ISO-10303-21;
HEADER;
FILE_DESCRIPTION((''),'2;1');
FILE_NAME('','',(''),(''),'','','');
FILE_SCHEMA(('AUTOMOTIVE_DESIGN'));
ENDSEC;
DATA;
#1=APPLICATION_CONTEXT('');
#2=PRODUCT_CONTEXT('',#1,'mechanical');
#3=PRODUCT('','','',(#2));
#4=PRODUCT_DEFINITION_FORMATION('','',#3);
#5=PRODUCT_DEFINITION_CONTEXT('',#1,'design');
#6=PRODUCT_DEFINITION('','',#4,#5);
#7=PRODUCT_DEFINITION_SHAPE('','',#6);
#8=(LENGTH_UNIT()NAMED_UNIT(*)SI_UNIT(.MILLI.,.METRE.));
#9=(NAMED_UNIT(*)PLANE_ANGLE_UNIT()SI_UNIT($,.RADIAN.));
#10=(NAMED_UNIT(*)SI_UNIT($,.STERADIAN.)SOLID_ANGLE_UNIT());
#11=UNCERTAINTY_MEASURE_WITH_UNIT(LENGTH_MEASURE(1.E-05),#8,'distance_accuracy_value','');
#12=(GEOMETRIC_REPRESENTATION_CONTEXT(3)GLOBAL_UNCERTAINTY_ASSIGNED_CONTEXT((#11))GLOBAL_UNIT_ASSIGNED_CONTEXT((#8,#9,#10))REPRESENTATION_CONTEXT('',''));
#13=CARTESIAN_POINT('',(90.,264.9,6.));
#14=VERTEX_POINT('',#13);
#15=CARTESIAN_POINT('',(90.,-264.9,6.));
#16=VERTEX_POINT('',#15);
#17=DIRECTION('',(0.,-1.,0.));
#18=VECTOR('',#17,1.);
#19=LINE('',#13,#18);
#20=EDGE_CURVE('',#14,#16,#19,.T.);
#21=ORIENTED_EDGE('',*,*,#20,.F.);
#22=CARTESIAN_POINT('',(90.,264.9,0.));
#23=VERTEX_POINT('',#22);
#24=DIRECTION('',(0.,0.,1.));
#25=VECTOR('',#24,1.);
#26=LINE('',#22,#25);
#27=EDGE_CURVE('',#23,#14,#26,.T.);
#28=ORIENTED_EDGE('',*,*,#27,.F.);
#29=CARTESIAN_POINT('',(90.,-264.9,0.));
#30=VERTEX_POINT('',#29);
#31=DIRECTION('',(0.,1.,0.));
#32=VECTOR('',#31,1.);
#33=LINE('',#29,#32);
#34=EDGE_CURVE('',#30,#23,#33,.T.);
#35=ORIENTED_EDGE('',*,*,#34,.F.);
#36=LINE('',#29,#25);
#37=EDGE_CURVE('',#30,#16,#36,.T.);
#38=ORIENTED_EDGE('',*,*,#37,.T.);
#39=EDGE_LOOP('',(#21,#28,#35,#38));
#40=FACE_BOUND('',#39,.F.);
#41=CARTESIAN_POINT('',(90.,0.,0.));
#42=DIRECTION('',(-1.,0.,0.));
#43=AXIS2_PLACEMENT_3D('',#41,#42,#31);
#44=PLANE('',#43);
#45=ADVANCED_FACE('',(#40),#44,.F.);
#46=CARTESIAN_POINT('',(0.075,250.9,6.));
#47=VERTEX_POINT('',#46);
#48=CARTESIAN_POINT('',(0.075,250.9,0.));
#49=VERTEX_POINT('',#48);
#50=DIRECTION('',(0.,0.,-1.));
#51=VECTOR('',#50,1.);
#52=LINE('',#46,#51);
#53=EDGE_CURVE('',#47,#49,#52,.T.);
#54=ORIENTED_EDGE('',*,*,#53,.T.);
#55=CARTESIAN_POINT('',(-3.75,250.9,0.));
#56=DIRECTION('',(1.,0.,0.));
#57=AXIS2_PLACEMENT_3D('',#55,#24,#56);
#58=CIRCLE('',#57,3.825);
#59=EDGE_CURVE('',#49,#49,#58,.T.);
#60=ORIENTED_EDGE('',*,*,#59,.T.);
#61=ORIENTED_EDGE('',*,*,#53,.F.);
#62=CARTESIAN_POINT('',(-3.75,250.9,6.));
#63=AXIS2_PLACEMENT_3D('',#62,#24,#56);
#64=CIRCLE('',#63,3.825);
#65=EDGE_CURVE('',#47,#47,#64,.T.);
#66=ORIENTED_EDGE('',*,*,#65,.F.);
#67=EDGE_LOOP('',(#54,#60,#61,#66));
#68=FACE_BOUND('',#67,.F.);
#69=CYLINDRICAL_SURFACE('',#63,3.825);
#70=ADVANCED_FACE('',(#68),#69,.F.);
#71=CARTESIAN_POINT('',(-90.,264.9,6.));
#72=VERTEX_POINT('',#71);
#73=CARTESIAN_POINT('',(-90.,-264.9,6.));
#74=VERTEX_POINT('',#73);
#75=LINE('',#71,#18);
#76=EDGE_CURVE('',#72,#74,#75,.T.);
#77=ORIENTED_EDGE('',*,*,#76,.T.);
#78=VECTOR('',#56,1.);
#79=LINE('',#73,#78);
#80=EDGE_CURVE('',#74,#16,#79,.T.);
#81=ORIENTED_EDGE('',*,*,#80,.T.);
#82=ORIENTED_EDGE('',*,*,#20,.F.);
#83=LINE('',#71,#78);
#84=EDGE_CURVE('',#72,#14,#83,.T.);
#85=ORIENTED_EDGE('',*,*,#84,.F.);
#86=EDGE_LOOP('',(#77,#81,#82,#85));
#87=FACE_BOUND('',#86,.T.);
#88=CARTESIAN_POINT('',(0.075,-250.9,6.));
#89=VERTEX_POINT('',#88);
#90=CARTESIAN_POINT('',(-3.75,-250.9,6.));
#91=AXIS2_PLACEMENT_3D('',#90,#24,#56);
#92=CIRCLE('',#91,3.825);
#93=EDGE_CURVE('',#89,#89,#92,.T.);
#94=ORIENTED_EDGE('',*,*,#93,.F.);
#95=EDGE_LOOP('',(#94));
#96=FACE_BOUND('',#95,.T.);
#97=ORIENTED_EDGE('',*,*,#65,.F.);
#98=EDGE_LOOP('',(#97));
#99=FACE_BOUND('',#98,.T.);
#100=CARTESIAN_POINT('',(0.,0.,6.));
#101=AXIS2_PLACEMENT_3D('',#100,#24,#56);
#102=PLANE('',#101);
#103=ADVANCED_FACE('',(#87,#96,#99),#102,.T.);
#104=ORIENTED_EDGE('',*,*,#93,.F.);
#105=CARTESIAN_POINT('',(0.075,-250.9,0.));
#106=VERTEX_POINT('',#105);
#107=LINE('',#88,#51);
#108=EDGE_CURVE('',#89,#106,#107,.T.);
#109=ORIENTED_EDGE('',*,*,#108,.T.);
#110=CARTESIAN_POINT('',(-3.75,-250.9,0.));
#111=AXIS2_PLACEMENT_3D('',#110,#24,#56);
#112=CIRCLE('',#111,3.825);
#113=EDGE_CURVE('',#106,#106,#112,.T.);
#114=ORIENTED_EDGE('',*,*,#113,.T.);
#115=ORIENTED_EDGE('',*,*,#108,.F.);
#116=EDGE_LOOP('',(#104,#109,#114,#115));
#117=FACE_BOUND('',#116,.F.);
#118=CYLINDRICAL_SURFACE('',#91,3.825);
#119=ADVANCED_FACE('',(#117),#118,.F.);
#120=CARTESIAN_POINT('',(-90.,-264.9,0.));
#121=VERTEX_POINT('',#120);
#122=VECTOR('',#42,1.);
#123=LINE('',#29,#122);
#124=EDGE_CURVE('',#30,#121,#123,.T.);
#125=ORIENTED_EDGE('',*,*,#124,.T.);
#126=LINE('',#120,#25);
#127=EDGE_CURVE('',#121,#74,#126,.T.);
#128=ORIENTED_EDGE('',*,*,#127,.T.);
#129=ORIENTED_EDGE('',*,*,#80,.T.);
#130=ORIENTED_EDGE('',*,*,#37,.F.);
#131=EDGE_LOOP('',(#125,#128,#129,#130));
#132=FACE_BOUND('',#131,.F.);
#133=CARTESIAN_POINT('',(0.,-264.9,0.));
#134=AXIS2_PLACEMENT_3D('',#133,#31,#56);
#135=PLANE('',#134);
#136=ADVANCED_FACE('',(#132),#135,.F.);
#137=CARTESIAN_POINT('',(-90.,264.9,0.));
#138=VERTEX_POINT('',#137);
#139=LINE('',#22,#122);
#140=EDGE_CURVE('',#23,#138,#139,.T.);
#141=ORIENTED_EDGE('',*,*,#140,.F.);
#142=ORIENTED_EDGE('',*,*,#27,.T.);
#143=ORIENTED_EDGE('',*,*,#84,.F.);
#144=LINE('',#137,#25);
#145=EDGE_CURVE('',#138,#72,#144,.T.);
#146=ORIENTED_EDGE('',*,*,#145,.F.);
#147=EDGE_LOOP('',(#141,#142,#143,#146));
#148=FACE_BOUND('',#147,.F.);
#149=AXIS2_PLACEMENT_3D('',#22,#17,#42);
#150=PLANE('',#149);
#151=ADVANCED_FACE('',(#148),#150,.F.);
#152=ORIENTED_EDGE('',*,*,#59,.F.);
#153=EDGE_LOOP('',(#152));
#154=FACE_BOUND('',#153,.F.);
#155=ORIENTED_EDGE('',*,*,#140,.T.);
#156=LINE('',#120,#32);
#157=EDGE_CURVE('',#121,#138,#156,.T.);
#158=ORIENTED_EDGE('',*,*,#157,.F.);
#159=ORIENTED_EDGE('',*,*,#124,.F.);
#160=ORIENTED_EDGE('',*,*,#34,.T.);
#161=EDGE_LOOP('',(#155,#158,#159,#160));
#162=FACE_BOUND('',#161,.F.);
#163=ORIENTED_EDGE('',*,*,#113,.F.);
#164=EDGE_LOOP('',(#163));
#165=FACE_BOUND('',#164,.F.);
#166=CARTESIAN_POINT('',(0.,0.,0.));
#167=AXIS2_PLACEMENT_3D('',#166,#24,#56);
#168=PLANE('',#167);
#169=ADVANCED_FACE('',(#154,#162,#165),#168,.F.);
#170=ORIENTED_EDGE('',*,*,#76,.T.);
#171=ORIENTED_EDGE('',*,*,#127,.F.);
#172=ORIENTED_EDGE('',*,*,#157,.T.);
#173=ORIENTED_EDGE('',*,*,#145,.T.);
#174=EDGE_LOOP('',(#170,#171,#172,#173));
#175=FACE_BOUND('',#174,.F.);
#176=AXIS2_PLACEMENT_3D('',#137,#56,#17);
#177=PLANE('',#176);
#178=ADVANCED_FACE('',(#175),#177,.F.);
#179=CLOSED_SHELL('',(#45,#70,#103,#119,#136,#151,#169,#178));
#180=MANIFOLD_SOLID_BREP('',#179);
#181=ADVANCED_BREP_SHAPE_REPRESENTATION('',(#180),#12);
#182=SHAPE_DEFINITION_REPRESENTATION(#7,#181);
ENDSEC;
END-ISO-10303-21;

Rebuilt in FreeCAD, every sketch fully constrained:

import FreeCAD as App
import Part
import Sketcher

V = App.Vector
Q = App.Units.Quantity


def add_polygon(sketch, points):
    """Adds a closed chain of lines whose ends are joined by coincident constraints."""
    first, n = sketch.GeometryCount, len(points)
    for a, b in zip(points, points[1:] + points[:1]):
        sketch.addGeometry(Part.LineSegment(App.Vector(*a, 0), App.Vector(*b, 0)), False)
    for i in range(n):
        sketch.addConstraint(Sketcher.Constraint("Coincident", first + i, 2, first + (i + 1) % n, 1))

doc = App.newDocument("Part")
body = doc.addObject("PartDesign::Body", "Body")

sketch1 = body.newObject("Sketcher::SketchObject", "Sketch")
sketch1.AttachmentSupport = (doc.getObject("XY_Plane"), [""])
sketch1.MapMode = "FlatFace"
add_polygon(sketch1, [(90, 264.9), (-90, 264.9), (-90, -264.9), (90, -264.9)])
sketch1.addConstraint(Sketcher.Constraint("Horizontal", 0))
sketch1.addConstraint(Sketcher.Constraint("Vertical", 1))
sketch1.addConstraint(Sketcher.Constraint("Horizontal", 2))
sketch1.addConstraint(Sketcher.Constraint("Vertical", 3))
sketch1.addConstraint(Sketcher.Constraint("Symmetric", 0, 2, 2, 2, -1, 1))
sketch1.addConstraint(Sketcher.Constraint("DistanceX", 0, 2, 0, 1, Q("180 mm")))
sketch1.addConstraint(Sketcher.Constraint("DistanceY", 1, 2, 1, 1, Q("529.8 mm")))
pad1 = body.newObject("PartDesign::Pad", "Pad")
pad1.Profile = sketch1
pad1.Length = 6

sketch2 = body.newObject("Sketcher::SketchObject", "Sketch001")
sketch2.AttachmentSupport = (doc.getObject("XY_Plane"), [""])
sketch2.MapMode = "FlatFace"
sketch2.AttachmentOffset = App.Placement(V(0, 0, 6), App.Rotation())
sketch2.addGeometry(Part.Circle(V(-3.75, -250.9, 0), V(0, 0, 1), 3.825), False)
sketch2.addGeometry(Part.Circle(V(-3.75, 250.9, 0), V(0, 0, 1), 3.825), False)
sketch2.addConstraint(Sketcher.Constraint("Equal", 0, 1))
sketch2.addConstraint(Sketcher.Constraint("Symmetric", 0, 3, 1, 3, -1))
sketch2.addConstraint(Sketcher.Constraint("Diameter", 0, Q("7.65 mm")))
sketch2.addConstraint(Sketcher.Constraint("DistanceY", 0, 3, -1, 1, Q("250.9 mm")))
sketch2.addConstraint(Sketcher.Constraint("DistanceX", 0, 3, -1, 1, Q("3.75 mm")))
pocket1 = body.newObject("PartDesign::Pocket", "Pocket")
pocket1.Profile = sketch2
pocket1.Length = 10

doc.recompute()
